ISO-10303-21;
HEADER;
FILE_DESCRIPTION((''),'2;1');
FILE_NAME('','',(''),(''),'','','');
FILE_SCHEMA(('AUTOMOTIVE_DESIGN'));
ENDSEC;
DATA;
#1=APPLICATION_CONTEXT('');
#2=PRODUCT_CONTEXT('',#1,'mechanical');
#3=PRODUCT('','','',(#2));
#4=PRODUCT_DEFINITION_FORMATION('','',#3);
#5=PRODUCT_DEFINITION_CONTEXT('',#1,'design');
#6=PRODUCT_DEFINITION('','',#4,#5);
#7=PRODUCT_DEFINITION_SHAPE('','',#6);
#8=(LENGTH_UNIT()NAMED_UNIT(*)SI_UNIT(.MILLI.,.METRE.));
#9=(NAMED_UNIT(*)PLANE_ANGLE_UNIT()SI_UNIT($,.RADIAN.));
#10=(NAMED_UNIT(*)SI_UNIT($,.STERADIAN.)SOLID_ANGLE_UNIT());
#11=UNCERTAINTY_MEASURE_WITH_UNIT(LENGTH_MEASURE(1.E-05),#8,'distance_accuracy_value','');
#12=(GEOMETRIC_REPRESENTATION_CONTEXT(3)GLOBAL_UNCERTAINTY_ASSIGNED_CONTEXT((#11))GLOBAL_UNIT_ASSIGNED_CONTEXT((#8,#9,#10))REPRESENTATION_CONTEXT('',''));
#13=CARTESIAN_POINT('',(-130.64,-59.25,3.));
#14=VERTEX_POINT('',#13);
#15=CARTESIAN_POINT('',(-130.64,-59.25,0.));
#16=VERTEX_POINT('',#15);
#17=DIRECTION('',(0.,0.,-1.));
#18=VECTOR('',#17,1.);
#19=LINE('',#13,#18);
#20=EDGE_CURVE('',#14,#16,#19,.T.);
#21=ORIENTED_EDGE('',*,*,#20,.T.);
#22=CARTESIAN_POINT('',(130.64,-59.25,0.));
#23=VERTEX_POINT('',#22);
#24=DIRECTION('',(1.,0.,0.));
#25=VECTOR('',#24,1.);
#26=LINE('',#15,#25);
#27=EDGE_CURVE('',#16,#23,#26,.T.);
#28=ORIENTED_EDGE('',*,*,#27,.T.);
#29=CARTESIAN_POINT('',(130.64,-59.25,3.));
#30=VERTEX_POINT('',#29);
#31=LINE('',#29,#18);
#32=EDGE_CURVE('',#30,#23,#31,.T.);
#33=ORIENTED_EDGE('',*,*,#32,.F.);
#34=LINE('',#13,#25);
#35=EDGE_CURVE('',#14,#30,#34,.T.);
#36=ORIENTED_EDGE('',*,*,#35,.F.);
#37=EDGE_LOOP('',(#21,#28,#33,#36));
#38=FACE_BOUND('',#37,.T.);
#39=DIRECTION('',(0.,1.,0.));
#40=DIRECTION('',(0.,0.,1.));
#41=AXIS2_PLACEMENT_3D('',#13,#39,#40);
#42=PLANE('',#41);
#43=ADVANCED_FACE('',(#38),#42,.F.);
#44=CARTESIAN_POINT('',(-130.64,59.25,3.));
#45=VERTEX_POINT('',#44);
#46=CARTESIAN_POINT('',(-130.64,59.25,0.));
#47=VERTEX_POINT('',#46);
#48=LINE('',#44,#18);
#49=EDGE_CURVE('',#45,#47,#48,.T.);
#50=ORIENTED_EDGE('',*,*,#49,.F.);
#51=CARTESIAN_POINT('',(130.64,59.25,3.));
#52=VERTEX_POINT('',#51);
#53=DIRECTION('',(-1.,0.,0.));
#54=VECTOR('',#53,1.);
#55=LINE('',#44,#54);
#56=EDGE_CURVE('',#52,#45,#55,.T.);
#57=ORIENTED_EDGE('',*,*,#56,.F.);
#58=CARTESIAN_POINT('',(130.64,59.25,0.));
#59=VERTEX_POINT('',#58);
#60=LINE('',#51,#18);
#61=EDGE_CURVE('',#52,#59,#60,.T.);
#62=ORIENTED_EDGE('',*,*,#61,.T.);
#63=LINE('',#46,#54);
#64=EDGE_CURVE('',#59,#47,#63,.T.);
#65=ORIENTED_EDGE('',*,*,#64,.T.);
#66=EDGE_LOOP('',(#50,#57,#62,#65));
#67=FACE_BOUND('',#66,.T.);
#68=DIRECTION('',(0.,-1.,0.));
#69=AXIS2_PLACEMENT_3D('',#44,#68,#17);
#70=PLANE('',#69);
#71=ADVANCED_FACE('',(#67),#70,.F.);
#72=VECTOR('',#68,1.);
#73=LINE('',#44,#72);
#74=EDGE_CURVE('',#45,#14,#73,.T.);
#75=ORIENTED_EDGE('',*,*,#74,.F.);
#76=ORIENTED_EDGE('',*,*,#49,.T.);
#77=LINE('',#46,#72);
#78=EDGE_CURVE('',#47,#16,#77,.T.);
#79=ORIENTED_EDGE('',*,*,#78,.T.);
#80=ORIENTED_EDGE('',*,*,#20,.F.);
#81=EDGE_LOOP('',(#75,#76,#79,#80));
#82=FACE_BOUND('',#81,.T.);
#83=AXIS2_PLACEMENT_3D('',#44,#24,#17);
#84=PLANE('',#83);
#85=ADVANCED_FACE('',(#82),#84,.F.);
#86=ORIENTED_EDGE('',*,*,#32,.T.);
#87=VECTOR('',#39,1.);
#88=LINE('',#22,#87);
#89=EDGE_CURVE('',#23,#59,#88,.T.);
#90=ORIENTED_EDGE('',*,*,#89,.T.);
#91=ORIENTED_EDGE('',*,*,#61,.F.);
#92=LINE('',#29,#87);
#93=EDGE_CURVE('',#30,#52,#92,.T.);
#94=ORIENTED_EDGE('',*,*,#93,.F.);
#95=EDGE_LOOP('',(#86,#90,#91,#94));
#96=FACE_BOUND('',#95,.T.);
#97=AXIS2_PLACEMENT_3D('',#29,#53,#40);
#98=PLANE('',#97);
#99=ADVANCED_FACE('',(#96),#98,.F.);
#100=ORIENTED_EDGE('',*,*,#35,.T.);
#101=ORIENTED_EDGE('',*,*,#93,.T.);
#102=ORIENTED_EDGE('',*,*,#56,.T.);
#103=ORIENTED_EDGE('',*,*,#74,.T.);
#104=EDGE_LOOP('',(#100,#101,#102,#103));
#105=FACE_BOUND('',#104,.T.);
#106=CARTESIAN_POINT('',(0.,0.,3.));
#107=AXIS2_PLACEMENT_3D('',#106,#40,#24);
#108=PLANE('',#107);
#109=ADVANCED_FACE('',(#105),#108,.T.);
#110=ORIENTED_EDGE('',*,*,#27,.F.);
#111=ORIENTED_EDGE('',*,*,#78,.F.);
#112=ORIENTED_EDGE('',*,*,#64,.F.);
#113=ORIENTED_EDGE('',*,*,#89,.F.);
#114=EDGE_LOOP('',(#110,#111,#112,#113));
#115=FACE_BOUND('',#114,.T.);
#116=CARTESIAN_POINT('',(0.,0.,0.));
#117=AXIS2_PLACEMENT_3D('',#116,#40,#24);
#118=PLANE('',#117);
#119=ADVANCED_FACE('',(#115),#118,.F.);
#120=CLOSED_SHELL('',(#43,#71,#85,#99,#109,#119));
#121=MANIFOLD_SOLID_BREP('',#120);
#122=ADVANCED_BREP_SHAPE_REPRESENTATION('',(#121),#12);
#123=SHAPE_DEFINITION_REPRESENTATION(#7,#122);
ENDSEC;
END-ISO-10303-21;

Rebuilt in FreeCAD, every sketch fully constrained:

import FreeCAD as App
import Part
import Sketcher
from FreeCAD import Vector

doc = App.newDocument("Part")
params = doc.addObject("Spreadsheet::Sheet", "Params")
for row, (alias, value) in enumerate([
    ("sketch1_height", "118.5 mm"),
    ("sketch1_width", "261.28 mm"),
    ("pad1_length", "3 mm"),
], start=1):
    params.set(f"A{row}", alias)
    params.set(f"B{row}", "=" + value)
    params.setAlias(f"B{row}", alias)

body = doc.addObject("PartDesign::Body", "Body")

sketch1 = doc.addObject("Sketcher::SketchObject", "Sketch")
body.addObject(sketch1)
sketch1.AttachmentSupport = (doc.XY_Plane, [""])
sketch1.MapMode = "FlatFace"
sketch1.addGeometry([
    Part.LineSegment(Vector(-131, 59, 0), Vector(-131, -59, 0)),
    Part.LineSegment(Vector(-131, -59, 0), Vector(131, -59, 0)),
    Part.LineSegment(Vector(131, -59, 0), Vector(131, 59, 0)),
    Part.LineSegment(Vector(131, 59, 0), Vector(-131, 59, 0)),
], False)
sketch1.addConstraint([
    Sketcher.Constraint("Coincident", 0, 2, 1, 1),
    Sketcher.Constraint("Coincident", 1, 2, 2, 1),
    Sketcher.Constraint("Coincident", 2, 2, 3, 1),
    Sketcher.Constraint("Coincident", 3, 2, 0, 1),
    Sketcher.Constraint("Vertical", 0),
    Sketcher.Constraint("Horizontal", 1),
    Sketcher.Constraint("Vertical", 2),
    Sketcher.Constraint("Horizontal", 3),
    Sketcher.Constraint("Symmetric", 0, 2, 2, 2, -1, 1),
    Sketcher.Constraint("DistanceY", 0, 2, 0, 1, 118.5),
    Sketcher.Constraint("DistanceX", 1, 1, 1, 2, 261.28),
])
sketch1.setExpression("Constraints[9]", "Params.sketch1_height")
sketch1.setExpression("Constraints[10]", "Params.sketch1_width")
pad1 = doc.addObject("PartDesign::Pad", "Pad")
body.addObject(pad1)
pad1.Profile = sketch1
pad1.setExpression("Length", "Params.pad1_length")

doc.recompute()
